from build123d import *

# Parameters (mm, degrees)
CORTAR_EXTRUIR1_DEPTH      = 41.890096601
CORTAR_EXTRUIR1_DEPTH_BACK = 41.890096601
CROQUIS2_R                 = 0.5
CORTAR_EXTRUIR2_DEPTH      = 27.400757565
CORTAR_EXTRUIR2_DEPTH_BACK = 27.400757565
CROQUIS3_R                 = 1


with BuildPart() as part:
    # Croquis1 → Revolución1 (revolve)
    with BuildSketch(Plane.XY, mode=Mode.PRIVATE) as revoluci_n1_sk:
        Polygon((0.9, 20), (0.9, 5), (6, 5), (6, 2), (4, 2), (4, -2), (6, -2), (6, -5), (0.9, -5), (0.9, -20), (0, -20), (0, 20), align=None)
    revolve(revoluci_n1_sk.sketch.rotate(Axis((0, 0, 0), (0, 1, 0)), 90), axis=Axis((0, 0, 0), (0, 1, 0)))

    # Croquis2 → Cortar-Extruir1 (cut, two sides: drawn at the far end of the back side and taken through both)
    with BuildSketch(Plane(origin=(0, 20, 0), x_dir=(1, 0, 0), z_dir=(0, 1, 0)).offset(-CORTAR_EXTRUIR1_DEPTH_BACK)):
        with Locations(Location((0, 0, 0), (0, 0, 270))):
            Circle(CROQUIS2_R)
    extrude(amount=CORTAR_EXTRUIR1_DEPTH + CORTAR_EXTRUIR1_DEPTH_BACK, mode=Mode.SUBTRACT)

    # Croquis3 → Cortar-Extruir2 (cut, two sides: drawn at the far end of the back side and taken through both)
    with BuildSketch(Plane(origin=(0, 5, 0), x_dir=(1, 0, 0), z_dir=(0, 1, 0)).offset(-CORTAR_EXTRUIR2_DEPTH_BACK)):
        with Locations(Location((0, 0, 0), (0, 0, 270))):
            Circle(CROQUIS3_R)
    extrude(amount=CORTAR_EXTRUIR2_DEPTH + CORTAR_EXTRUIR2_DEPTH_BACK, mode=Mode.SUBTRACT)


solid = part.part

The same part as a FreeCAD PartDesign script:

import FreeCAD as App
import Part
import Sketcher

V = App.Vector
Q = App.Units.Quantity

doc = App.newDocument("Part")
body = doc.addObject("PartDesign::Body", "Body")

sketch1 = body.newObject("Sketcher::SketchObject", "Sketch")
sketch1.AttachmentSupport = (doc.getObject("XY_Plane"), [""])
sketch1.MapMode = "FlatFace"
sketch1.addGeometry(Part.LineSegment(V(0.9, 5, 0), V(0.9, 20, 0)), False)
sketch1.addGeometry(Part.LineSegment(V(0.9, 20, 0), V(0, 20, 0)), False)
sketch1.addGeometry(Part.LineSegment(V(0, 20, 0), V(0, -20, 0)), False)
sketch1.addGeometry(Part.LineSegment(V(0, -20, 0), V(0.9, -20, 0)), False)
sketch1.addGeometry(Part.LineSegment(V(0.9, -20, 0), V(0.9, -5, 0)), False)
sketch1.addGeometry(Part.LineSegment(V(0.9, -5, 0), V(6, -5, 0)), False)
sketch1.addGeometry(Part.LineSegment(V(6, -5, 0), V(6, -2, 0)), False)
sketch1.addGeometry(Part.LineSegment(V(6, -2, 0), V(4, -2, 0)), False)
sketch1.addGeometry(Part.LineSegment(V(4, -2, 0), V(4, 2, 0)), False)
sketch1.addGeometry(Part.LineSegment(V(4, 2, 0), V(6, 2, 0)), False)
sketch1.addGeometry(Part.LineSegment(V(6, 2, 0), V(6, 5, 0)), False)
sketch1.addGeometry(Part.LineSegment(V(6, 5, 0), V(0.9, 5, 0)), False)
sketch1.addConstraint(Sketcher.Constraint("Coincident", 0, 2, 1, 1))
sketch1.addConstraint(Sketcher.Constraint("Coincident", 1, 2, 2, 1))
sketch1.addConstraint(Sketcher.Constraint("Coincident", 2, 2, 3, 1))
sketch1.addConstraint(Sketcher.Constraint("Coincident", 3, 2, 4, 1))
sketch1.addConstraint(Sketcher.Constraint("Coincident", 4, 2, 5, 1))
sketch1.addConstraint(Sketcher.Constraint("Coincident", 5, 2, 6, 1))
sketch1.addConstraint(Sketcher.Constraint("Coincident", 6, 2, 7, 1))
sketch1.addConstraint(Sketcher.Constraint("Coincident", 7, 2, 8, 1))
sketch1.addConstraint(Sketcher.Constraint("Coincident", 8, 2, 9, 1))
sketch1.addConstraint(Sketcher.Constraint("Coincident", 9, 2, 10, 1))
sketch1.addConstraint(Sketcher.Constraint("Coincident", 10, 2, 11, 1))
sketch1.addConstraint(Sketcher.Constraint("Coincident", 11, 2, 0, 1))
sketch1.addConstraint(Sketcher.Constraint("Vertical", 0))
sketch1.addConstraint(Sketcher.Constraint("Horizontal", 1))
sketch1.addConstraint(Sketcher.Constraint("Vertical", 2))
sketch1.addConstraint(Sketcher.Constraint("Horizontal", 3))
sketch1.addConstraint(Sketcher.Constraint("Vertical", 4))
sketch1.addConstraint(Sketcher.Constraint("Horizontal", 5))
sketch1.addConstraint(Sketcher.Constraint("Vertical", 6))
sketch1.addConstraint(Sketcher.Constraint("Horizontal", 7))
sketch1.addConstraint(Sketcher.Constraint("Vertical", 8))
sketch1.addConstraint(Sketcher.Constraint("Horizontal", 9))
sketch1.addConstraint(Sketcher.Constraint("Vertical", 10))
sketch1.addConstraint(Sketcher.Constraint("Horizontal", 11))
sketch1.addConstraint(Sketcher.Constraint("Symmetric", 1, 2, 2, 2, -1, 1))
sketch1.addConstraint(Sketcher.Constraint("Symmetric", 6, 2, 9, 2, -1))
sketch1.addConstraint(Sketcher.Constraint("Symmetric", 4, 2, 11, 2, -1))
sketch1.addConstraint(Sketcher.Constraint("DistanceX", 7, 2, 7, 1, Q("2 mm")))
sketch1.addConstraint(Sketcher.Constraint("DistanceY", 0, 1, 0, 2, Q("15 mm")))
sketch1.addConstraint(Sketcher.Constraint("DistanceY", 2, 2, 2, 1, Q("40 mm")))
sketch1.addConstraint(Sketcher.Constraint("DistanceY", 6, 1, 6, 2, Q("3 mm")))
sketch1.addConstraint(Sketcher.Constraint("DistanceX", 1, 2, 1, 1, Q("0.9 mm")))
sketch1.addConstraint(Sketcher.Constraint("DistanceX", 5, 1, 5, 2, Q("5.1 mm")))
revolution = body.newObject("PartDesign::Revolution", "Revolution")
revolution.Profile = sketch1
revolution.ReferenceAxis = (sketch1, ["V_Axis"])
revolution.Angle = 360

sketch2 = body.newObject("Sketcher::SketchObject", "Sketch001")
sketch2.AttachmentSupport = (doc.getObject("XZ_Plane"), [""])
sketch2.MapMode = "FlatFace"
sketch2.AttachmentOffset = App.Placement(V(0, 0, -20), App.Rotation())
sketch2.addGeometry(Part.Circle(V(0, 0, 0), V(0, 0, 1), 0.5), False)
sketch2.addConstraint(Sketcher.Constraint("Coincident", 0, 3, -1, 1))
sketch2.addConstraint(Sketcher.Constraint("Diameter", 0, Q("1 mm")))
pocket1 = body.newObject("PartDesign::Pocket", "Pocket")
pocket1.Profile = sketch2
pocket1.Type = "ThroughAll"
pocket1.Midplane = True

sketch3 = body.newObject("Sketcher::SketchObject", "Sketch002")
sketch3.AttachmentSupport = (doc.getObject("XZ_Plane"), [""])
sketch3.MapMode = "FlatFace"
sketch3.AttachmentOffset = App.Placement(V(0, 0, -5), App.Rotation())
sketch3.addGeometry(Part.Circle(V(0, 0, 0), V(0, 0, 1), 1), False)
sketch3.addConstraint(Sketcher.Constraint("Coincident", 0, 3, -1, 1))
sketch3.addConstraint(Sketcher.Constraint("Diameter", 0, Q("2 mm")))
pocket2 = body.newObject("PartDesign::Pocket", "Pocket001")
pocket2.Profile = sketch3
pocket2.Type = "ThroughAll"
pocket2.Midplane = True

doc.recompute()
